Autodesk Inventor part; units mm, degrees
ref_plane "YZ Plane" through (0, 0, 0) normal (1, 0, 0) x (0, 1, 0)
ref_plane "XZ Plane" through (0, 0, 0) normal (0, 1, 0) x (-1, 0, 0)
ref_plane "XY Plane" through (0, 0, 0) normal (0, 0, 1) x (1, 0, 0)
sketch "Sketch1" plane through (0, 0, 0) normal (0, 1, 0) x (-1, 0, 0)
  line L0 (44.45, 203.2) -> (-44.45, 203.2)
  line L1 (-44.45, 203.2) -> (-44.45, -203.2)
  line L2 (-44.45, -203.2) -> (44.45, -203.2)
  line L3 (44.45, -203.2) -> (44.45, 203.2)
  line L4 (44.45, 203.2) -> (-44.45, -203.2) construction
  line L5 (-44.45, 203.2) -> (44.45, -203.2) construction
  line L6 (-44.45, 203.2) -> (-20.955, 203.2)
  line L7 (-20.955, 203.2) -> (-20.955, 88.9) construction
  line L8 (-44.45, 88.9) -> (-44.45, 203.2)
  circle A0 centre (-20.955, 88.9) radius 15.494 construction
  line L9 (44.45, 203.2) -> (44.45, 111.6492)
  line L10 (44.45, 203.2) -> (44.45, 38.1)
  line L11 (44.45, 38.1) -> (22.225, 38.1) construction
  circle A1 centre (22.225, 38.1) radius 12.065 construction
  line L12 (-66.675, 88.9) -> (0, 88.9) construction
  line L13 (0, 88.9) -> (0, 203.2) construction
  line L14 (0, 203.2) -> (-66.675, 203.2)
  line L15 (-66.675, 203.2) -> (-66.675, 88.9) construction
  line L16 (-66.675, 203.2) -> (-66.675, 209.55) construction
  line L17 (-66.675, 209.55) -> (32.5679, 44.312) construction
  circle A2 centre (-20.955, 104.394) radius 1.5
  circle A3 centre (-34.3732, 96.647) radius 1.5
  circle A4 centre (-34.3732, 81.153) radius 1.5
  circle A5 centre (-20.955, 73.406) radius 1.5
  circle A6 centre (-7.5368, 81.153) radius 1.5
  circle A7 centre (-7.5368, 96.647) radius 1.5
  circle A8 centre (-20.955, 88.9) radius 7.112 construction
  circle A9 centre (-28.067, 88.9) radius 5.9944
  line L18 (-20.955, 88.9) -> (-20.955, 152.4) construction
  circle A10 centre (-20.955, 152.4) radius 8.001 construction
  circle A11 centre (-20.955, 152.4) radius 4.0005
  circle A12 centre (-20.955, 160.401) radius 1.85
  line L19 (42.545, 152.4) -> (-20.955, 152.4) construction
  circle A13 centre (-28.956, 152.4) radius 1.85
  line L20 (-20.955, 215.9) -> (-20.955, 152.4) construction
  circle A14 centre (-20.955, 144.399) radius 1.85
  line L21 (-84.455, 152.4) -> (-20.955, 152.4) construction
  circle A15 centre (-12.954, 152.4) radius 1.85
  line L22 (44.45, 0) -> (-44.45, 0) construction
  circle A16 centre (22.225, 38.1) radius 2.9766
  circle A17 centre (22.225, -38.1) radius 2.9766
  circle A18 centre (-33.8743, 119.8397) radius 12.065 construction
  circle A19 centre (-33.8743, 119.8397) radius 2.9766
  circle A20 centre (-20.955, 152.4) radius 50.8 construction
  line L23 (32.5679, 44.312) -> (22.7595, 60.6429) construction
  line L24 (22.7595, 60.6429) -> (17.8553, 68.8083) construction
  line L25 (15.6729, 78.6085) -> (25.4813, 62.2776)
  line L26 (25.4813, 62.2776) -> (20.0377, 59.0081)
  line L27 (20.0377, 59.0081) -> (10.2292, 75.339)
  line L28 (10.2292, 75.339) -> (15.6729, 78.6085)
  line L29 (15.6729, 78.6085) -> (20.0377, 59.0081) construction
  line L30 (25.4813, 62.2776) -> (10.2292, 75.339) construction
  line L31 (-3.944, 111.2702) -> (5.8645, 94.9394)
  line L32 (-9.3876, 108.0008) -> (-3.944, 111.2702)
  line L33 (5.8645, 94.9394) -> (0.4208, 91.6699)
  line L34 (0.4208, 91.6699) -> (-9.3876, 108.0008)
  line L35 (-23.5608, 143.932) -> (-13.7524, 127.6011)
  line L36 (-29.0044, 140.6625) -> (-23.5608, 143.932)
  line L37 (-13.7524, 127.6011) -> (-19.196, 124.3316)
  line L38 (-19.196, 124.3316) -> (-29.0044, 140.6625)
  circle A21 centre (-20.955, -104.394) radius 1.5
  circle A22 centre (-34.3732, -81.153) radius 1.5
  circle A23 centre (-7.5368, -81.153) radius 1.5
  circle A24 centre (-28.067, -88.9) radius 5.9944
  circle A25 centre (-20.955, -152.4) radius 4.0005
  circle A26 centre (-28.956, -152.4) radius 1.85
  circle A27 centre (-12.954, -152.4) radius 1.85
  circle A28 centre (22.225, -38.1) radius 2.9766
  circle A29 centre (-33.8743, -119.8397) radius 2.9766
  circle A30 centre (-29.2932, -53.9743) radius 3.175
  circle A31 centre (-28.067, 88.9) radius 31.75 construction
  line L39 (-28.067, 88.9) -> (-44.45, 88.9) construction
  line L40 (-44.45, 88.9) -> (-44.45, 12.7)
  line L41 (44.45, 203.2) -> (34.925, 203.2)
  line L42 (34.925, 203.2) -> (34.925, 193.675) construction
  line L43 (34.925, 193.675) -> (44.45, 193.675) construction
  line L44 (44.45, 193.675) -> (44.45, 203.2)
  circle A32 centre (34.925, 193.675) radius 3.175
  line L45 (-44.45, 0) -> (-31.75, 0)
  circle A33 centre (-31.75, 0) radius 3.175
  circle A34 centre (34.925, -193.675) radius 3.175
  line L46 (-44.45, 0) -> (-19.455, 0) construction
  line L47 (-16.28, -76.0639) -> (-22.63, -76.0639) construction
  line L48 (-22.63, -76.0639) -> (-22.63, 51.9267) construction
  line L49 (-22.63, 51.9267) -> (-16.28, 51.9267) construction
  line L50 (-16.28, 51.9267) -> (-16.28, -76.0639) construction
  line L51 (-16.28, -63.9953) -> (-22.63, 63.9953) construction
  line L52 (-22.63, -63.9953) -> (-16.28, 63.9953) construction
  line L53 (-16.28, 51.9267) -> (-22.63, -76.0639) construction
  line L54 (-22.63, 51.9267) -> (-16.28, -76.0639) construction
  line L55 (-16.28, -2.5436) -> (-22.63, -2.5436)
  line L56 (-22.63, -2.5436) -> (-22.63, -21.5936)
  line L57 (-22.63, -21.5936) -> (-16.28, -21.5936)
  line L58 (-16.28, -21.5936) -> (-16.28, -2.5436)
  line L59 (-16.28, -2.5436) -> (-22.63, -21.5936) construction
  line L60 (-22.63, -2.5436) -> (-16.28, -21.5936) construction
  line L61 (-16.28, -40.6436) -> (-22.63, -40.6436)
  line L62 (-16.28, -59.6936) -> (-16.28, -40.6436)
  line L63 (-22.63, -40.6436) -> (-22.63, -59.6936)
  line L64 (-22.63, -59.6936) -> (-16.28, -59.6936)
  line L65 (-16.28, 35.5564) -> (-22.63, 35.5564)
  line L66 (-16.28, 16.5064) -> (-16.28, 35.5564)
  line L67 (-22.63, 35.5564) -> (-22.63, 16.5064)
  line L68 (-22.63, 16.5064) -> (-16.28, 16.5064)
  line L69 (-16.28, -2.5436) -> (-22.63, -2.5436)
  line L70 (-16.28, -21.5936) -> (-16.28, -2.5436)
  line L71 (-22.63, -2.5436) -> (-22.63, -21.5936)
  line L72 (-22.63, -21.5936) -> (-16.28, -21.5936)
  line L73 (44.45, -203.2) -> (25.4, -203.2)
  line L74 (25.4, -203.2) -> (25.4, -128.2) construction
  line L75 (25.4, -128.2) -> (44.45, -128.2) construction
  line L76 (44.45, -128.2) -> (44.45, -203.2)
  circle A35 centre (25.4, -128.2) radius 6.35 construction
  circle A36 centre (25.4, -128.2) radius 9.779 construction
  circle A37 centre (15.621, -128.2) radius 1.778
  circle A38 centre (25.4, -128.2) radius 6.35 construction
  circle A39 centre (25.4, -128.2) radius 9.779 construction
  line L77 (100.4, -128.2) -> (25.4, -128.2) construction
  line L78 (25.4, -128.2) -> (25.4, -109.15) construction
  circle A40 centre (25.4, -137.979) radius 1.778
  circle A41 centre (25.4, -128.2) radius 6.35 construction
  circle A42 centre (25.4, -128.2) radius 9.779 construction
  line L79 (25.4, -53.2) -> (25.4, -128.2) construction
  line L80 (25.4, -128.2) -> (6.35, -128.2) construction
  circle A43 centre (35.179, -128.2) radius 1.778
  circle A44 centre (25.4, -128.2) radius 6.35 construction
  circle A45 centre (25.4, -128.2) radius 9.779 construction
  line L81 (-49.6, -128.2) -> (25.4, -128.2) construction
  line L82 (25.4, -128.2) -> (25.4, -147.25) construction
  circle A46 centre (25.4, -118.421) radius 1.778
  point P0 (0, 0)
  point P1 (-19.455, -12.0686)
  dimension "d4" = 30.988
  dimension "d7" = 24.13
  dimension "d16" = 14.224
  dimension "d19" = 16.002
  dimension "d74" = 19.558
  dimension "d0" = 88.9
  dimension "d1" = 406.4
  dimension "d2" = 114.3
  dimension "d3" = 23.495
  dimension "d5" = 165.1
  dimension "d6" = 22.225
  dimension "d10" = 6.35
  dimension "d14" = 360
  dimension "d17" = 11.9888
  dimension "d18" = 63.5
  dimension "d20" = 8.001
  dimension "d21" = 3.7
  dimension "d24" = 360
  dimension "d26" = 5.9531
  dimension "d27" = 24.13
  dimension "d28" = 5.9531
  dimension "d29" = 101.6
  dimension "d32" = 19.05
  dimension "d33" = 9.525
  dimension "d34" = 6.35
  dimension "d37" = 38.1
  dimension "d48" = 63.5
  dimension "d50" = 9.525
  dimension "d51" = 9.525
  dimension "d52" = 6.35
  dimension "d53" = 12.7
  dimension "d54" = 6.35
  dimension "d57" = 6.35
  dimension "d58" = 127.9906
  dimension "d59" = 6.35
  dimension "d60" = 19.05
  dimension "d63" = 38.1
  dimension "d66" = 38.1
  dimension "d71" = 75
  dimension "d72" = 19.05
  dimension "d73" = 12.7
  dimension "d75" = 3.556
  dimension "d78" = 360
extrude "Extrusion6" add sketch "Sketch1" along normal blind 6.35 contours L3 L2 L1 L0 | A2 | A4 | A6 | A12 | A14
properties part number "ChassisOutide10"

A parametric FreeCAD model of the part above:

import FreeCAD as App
import Part
import Sketcher
from FreeCAD import Vector
Q = App.Units.Quantity

doc = App.newDocument("Part")
body = doc.addObject("PartDesign::Body", "Body")

# Sketch on XZ plane
sketch1 = doc.addObject("Sketcher::SketchObject", "Sketch")
body.addObject(sketch1)
sketch1.AttachmentSupport = (doc.XZ_Plane, [""])
sketch1.MapMode = "FlatFace"
sketch1.addGeometry([
    Part.LineSegment(Vector(-44.45, 203.2, 0), Vector(44.45, 203.2, 0)),  # 0
    Part.LineSegment(Vector(44.45, 203.2, 0), Vector(44.45, 0, 0)),  # 1
    Part.LineSegment(Vector(44.45, 0, 0), Vector(44.45, -203.2, 0)),  # 2
    Part.LineSegment(Vector(44.45, -203.2, 0), Vector(-44.45, -203.2, 0)),  # 3
    Part.LineSegment(Vector(-44.45, -203.2, 0), Vector(-44.45, 203.2, 0)),  # 4
    Part.Circle(Vector(28.956, -152.4, 0), Vector(0, 0, 1), 1.85),  # 5
    Part.Circle(Vector(33.8743, -119.8397, 0), Vector(0, 0, 1), 2.9766),  # 6
    Part.Circle(Vector(20.955, -152.4, 0), Vector(0, 0, 1), 4.0005),  # 7
    Part.Circle(Vector(12.954, -152.4, 0), Vector(0, 0, 1), 1.85),  # 8
    Part.Circle(Vector(20.955, -104.394, 0), Vector(0, 0, 1), 1.5),  # 9
    Part.Circle(Vector(34.3732, -81.153, 0), Vector(0, 0, 1), 1.5),  # 10
    Part.Circle(Vector(28.067, -88.9, 0), Vector(0, 0, 1), 5.9944),  # 11
    Part.Circle(Vector(29.2932, -53.9743, 0), Vector(0, 0, 1), 3.175),  # 12
    Part.Circle(Vector(31.75, 0, 0), Vector(0, 0, 1), 3.175),  # 13
    Part.Circle(Vector(7.5368, -81.153, 0), Vector(0, 0, 1), 1.5),  # 14
    Part.LineSegment(Vector(22.63, -40.6436, 0), Vector(16.28, -40.6436, 0)),  # 15
    Part.LineSegment(Vector(16.28, -40.6436, 0), Vector(16.28, -59.6936, 0)),  # 16
    Part.LineSegment(Vector(16.28, -59.6936, 0), Vector(22.63, -59.6936, 0)),  # 17
    Part.LineSegment(Vector(22.63, -59.6936, 0), Vector(22.63, -40.6436, 0)),  # 18
    Part.LineSegment(Vector(22.63, -2.5436, 0), Vector(16.28, -2.5436, 0)),  # 19
    Part.LineSegment(Vector(16.28, -2.5436, 0), Vector(16.28, -21.5936, 0)),  # 20
    Part.LineSegment(Vector(16.28, -21.5936, 0), Vector(22.63, -21.5936, 0)),  # 21
    Part.LineSegment(Vector(22.63, -21.5936, 0), Vector(22.63, -2.5436, 0)),  # 22
    Part.Circle(Vector(-15.621, -128.2, 0), Vector(0, 0, 1), 1.778),  # 23
    Part.Circle(Vector(-34.925, -193.675, 0), Vector(0, 0, 1), 3.175),  # 24
    Part.Circle(Vector(-25.4, -137.979, 0), Vector(0, 0, 1), 1.778),  # 25
    Part.Circle(Vector(-25.4, -118.421, 0), Vector(0, 0, 1), 1.778),  # 26
    Part.Circle(Vector(-35.179, -128.2, 0), Vector(0, 0, 1), 1.778),  # 27
    Part.Circle(Vector(-22.225, -38.1, 0), Vector(0, 0, 1), 2.9766),  # 28
    Part.Circle(Vector(34.3732, 96.647, 0), Vector(0, 0, 1), 1.5),  # 29
    Part.Circle(Vector(28.067, 88.9, 0), Vector(0, 0, 1), 5.9944),  # 30
    Part.LineSegment(Vector(22.63, 35.5564, 0), Vector(16.28, 35.5564, 0)),  # 31
    Part.LineSegment(Vector(16.28, 35.5564, 0), Vector(16.28, 16.5064, 0)),  # 32
    Part.LineSegment(Vector(16.28, 16.5064, 0), Vector(22.63, 16.5064, 0)),  # 33
    Part.LineSegment(Vector(22.63, 16.5064, 0), Vector(22.63, 35.5564, 0)),  # 34
    Part.Circle(Vector(20.955, 73.406, 0), Vector(0, 0, 1), 1.5),  # 35
    Part.Circle(Vector(7.5368, 96.647, 0), Vector(0, 0, 1), 1.5),  # 36
    Part.LineSegment(Vector(9.3876, 108.0008, 0), Vector(3.944, 111.2702, 0)),  # 37
    Part.LineSegment(Vector(3.944, 111.2702, 0), Vector(-5.8645, 94.9394, 0)),  # 38
    Part.LineSegment(Vector(-5.8645, 94.9394, 0), Vector(-0.4208, 91.6699, 0)),  # 39
    Part.LineSegment(Vector(-0.4208, 91.6699, 0), Vector(9.3876, 108.0008, 0)),  # 40
    Part.Circle(Vector(33.8743, 119.8397, 0), Vector(0, 0, 1), 2.9766),  # 41
    Part.Circle(Vector(28.956, 152.4, 0), Vector(0, 0, 1), 1.85),  # 42
    Part.LineSegment(Vector(29.0044, 140.6625, 0), Vector(23.5608, 143.932, 0)),  # 43
    Part.LineSegment(Vector(23.5608, 143.932, 0), Vector(13.7524, 127.6011, 0)),  # 44
    Part.LineSegment(Vector(13.7524, 127.6011, 0), Vector(19.196, 124.3316, 0)),  # 45
    Part.LineSegment(Vector(19.196, 124.3316, 0), Vector(29.0044, 140.6625, 0)),  # 46
    Part.Circle(Vector(20.955, 152.4, 0), Vector(0, 0, 1), 4.0005),  # 47
    Part.Circle(Vector(12.954, 152.4, 0), Vector(0, 0, 1), 1.85),  # 48
    Part.LineSegment(Vector(-10.2292, 75.339, 0), Vector(-15.6729, 78.6085, 0)),  # 49
    Part.LineSegment(Vector(-15.6729, 78.6085, 0), Vector(-25.4813, 62.2776, 0)),  # 50
    Part.LineSegment(Vector(-25.4813, 62.2776, 0), Vector(-20.0377, 59.0081, 0)),  # 51
    Part.LineSegment(Vector(-20.0377, 59.0081, 0), Vector(-10.2292, 75.339, 0)),  # 52
    Part.Circle(Vector(-22.225, 38.1, 0), Vector(0, 0, 1), 2.9766),  # 53
    Part.Circle(Vector(-34.925, 193.675, 0), Vector(0, 0, 1), 3.175),  # 54
], False)
sketch1.addConstraint([
    Sketcher.Constraint("Coincident", 0, 2, 1, 1),
    Sketcher.Constraint("Coincident", 1, 2, 2, 1),
    Sketcher.Constraint("Coincident", 2, 2, 3, 1),
    Sketcher.Constraint("Coincident", 3, 2, 4, 1),
    Sketcher.Constraint("Coincident", 4, 2, 0, 1),
    Sketcher.Constraint("Coincident", 15, 2, 16, 1),
    Sketcher.Constraint("Coincident", 16, 2, 17, 1),
    Sketcher.Constraint("Coincident", 17, 2, 18, 1),
    Sketcher.Constraint("Coincident", 18, 2, 15, 1),
    Sketcher.Constraint("Coincident", 19, 2, 20, 1),
    Sketcher.Constraint("Coincident", 20, 2, 21, 1),
    Sketcher.Constraint("Coincident", 21, 2, 22, 1),
    Sketcher.Constraint("Coincident", 22, 2, 19, 1),
    Sketcher.Constraint("Coincident", 31, 2, 32, 1),
    Sketcher.Constraint("Coincident", 32, 2, 33, 1),
    Sketcher.Constraint("Coincident", 33, 2, 34, 1),
    Sketcher.Constraint("Coincident", 34, 2, 31, 1),
    Sketcher.Constraint("Coincident", 37, 2, 38, 1),
    Sketcher.Constraint("Coincident", 38, 2, 39, 1),
    Sketcher.Constraint("Coincident", 39, 2, 40, 1),
    Sketcher.Constraint("Coincident", 40, 2, 37, 1),
    Sketcher.Constraint("Coincident", 43, 2, 44, 1),
    Sketcher.Constraint("Coincident", 44, 2, 45, 1),
    Sketcher.Constraint("Coincident", 45, 2, 46, 1),
    Sketcher.Constraint("Coincident", 46, 2, 43, 1),
    Sketcher.Constraint("Coincident", 49, 2, 50, 1),
    Sketcher.Constraint("Coincident", 50, 2, 51, 1),
    Sketcher.Constraint("Coincident", 51, 2, 52, 1),
    Sketcher.Constraint("Coincident", 52, 2, 49, 1),
    Sketcher.Constraint("Horizontal", 0),
    Sketcher.Constraint("Vertical", 1),
    Sketcher.Constraint("Vertical", 2),
    Sketcher.Constraint("Horizontal", 3),
    Sketcher.Constraint("Vertical", 4),
    Sketcher.Constraint("Horizontal", 15),
    Sketcher.Constraint("Vertical", 16),
    Sketcher.Constraint("Horizontal", 17),
    Sketcher.Constraint("Vertical", 18),
    Sketcher.Constraint("Horizontal", 19),
    Sketcher.Constraint("Vertical", 20),
    Sketcher.Constraint("Horizontal", 21),
    Sketcher.Constraint("Vertical", 22),
    Sketcher.Constraint("Horizontal", 31),
    Sketcher.Constraint("Vertical", 32),
    Sketcher.Constraint("Horizontal", 33),
    Sketcher.Constraint("Vertical", 34),
    Sketcher.Constraint("Equal", 5, 8),
    Sketcher.Constraint("Equal", 9, 10),
    Sketcher.Constraint("Equal", 12, 13),
    Sketcher.Constraint("Equal", 10, 14),
    Sketcher.Constraint("Equal", 13, 24),
    Sketcher.Constraint("Equal", 23, 25),
    Sketcher.Constraint("Equal", 25, 26),
    Sketcher.Constraint("Equal", 26, 27),
    Sketcher.Constraint("Equal", 6, 28),
    Sketcher.Constraint("Equal", 14, 29),
    Sketcher.Constraint("Equal", 11, 30),
    Sketcher.Constraint("Equal", 29, 35),
    Sketcher.Constraint("Equal", 35, 36),
    Sketcher.Constraint("Equal", 28, 41),
    Sketcher.Constraint("Equal", 8, 42),
    Sketcher.Constraint("Equal", 7, 47),
    Sketcher.Constraint("Equal", 42, 48),
    Sketcher.Constraint("Equal", 41, 53),
    Sketcher.Constraint("Equal", 24, 54),
    Sketcher.Constraint("Symmetric", 0, 2, 3, 2, -1, 1),
    Sketcher.Constraint("Symmetric", 11, 3, 30, 3, -1),
    Sketcher.Constraint("Symmetric", 6, 3, 41, 3, -1),
    Sketcher.Constraint("Symmetric", 5, 3, 42, 3, -1),
    Sketcher.Constraint("Symmetric", 7, 3, 47, 3, -1),
    Sketcher.Constraint("Symmetric", 8, 3, 48, 3, -1),
    Sketcher.Constraint("Symmetric", 28, 3, 53, 3, -1),
    Sketcher.Constraint("Symmetric", 24, 3, 54, 3, -1),
    Sketcher.Constraint("PointOnObject", 13, 3, -1),
    Sketcher.Constraint("PointOnObject", 1, 2, -1),
    Sketcher.Constraint("Perpendicular", 37, 38),
    Sketcher.Constraint("Perpendicular", 38, 39),
    Sketcher.Constraint("Perpendicular", 39, 40),
    Sketcher.Constraint("Perpendicular", 40, 43),
    Sketcher.Constraint("Perpendicular", 43, 44),
    Sketcher.Constraint("Perpendicular", 44, 45),
    Sketcher.Constraint("Perpendicular", 45, 46),
    Sketcher.Constraint("Perpendicular", 46, 49),
    Sketcher.Constraint("Perpendicular", 49, 50),
    Sketcher.Constraint("Perpendicular", 50, 51),
    Sketcher.Constraint("Perpendicular", 51, 52),
    Sketcher.Constraint("Horizontal", 5, 3, 7, 3),
    Sketcher.Constraint("Horizontal", 7, 3, 8, 3),
    Sketcher.Constraint("Horizontal", 10, 3, 14, 3),
    Sketcher.Constraint("Horizontal", 23, 3, 27, 3),
    Sketcher.Constraint("Horizontal", 29, 3, 36, 3),
    Sketcher.Constraint("Vertical", 7, 3, 9, 3),
    Sketcher.Constraint("Vertical", 25, 3, 26, 3),
    Sketcher.Constraint("Vertical", 10, 3, 29, 3),
    Sketcher.Constraint("Vertical", 9, 3, 35, 3),
    Sketcher.Constraint("Vertical", 14, 3, 36, 3),
    Sketcher.Constraint("Vertical", 16, 2, 19, 2),
    Sketcher.Constraint("Vertical", 18, 2, 21, 2),
    Sketcher.Constraint("Vertical", 20, 2, 31, 2),
    Sketcher.Constraint("Vertical", 22, 2, 33, 2),
    Sketcher.Constraint("Equal", 18, 20),
    Sketcher.Constraint("Equal", 22, 32),
    Sketcher.Constraint("Equal", 39, 43),
    Sketcher.Constraint("Equal", 40, 44),
    Sketcher.Constraint("Equal", 45, 49),
    Sketcher.Constraint("Equal", 46, 50),
    Sketcher.Constraint("Diameter", 12, Q("0.25 in")),
    Sketcher.Constraint("Diameter", 23, Q("0.14 in")),
    Sketcher.Constraint("DistanceY", 4, 1, 4, 2, Q("16 in")),
    Sketcher.Constraint("Diameter", 6, Q("0.234378 in")),
    Sketcher.Constraint("Diameter", 7, Q("0.315 in")),
    Sketcher.Constraint("Diameter", 11, Q("0.472 in")),
    Sketcher.Constraint("DistanceX", 0, 1, 0, 2, Q("3.5 in")),
    Sketcher.Constraint("DistanceX", 25, 3, -1, 1, Q("1 in")),
    Sketcher.Constraint("DistanceX", 15, 2, 15, 1, Q("0.25 in")),
    Sketcher.Constraint("DistanceY", 16, 2, 16, 1, Q("0.75 in")),
    Sketcher.Constraint("DistanceY", 11, 3, -1, 1, Q("3.5 in")),
    Sketcher.Constraint("DistanceY", 28, 3, -1, 1, Q("1.5 in")),
    Sketcher.Constraint("DistanceY", 5, 3, 11, 3, Q("2.5 in")),
    Sketcher.Constraint("DistanceX", 13, 3, 1, 2, Q("0.5 in")),
    Sketcher.Constraint("DistanceY", 15, 2, 19, 2, Q("1.5 in")),
    Sketcher.Constraint("DistanceY", 19, 2, 31, 2, Q("1.5 in")),
    Sketcher.Constraint("Distance", 37, Q("0.25 in")),
    Sketcher.Constraint("Distance", 38, Q("0.75 in")),
    Sketcher.Constraint("Diameter", 5, Q("3.7 mm")),
    Sketcher.Constraint("DistanceX", 8, 3, 5, 3, Q("0.63 in")),
    Sketcher.Constraint("DistanceY", 25, 3, 26, 3, Q("0.77 in")),
    Sketcher.Constraint("DistanceX", 27, 3, 23, 3, Q("0.77 in")),
    Sketcher.Constraint("DistanceX", 28, 3, -1, 1, Q("0.875 in")),
    Sketcher.Constraint("DistanceX", 7, 3, 5, 3, Q("0.315 in")),
    Sketcher.Constraint("DistanceX", 24, 3, 25, 3, Q("0.375 in")),
    Sketcher.Constraint("DistanceY", 10, 3, 29, 3, Q("7 in")),
    Sketcher.Constraint("DistanceX", 47, 3, 0, 2, Q("0.925 in")),
    Sketcher.Constraint("DistanceY", 54, 3, 0, 2, Q("0.375 in")),
    Sketcher.Constraint("Diameter", 9, Q("0.1181 in")),
    Sketcher.Constraint("DistanceX", 12, 3, 10, 3, Q("0.2 in")),
    Sketcher.Constraint("DistanceY", 9, 3, -1, 1, Q("4.11 in")),
    Sketcher.Constraint("DistanceY", -1, 1, 35, 3, Q("2.89 in")),
    Sketcher.Constraint("Angle", 37, Q("149.0112 deg")),
    Sketcher.Constraint("DistanceX", 9, 3, 11, 3, Q("0.28 in")),
    Sketcher.Constraint("DistanceX", 23, 3, 9, 3, Q("1.44 in")),
    Sketcher.Constraint("DistanceY", 36, 3, 54, 3, Q("3.82 in")),
    Sketcher.Constraint("DistanceY", 3, 2, 27, 3, Q("75 mm")),
    Sketcher.Constraint("DistanceY", -1, 1, 40, 2, Q("4.252 in")),
    Sketcher.Constraint("DistanceY", 25, 3, 23, 3, Q("0.385 in")),
    Sketcher.Constraint("DistanceX", 37, 2, 29, 3, Q("1.198 in")),
    Sketcher.Constraint("DistanceX", 51, 2, 38, 2, Q("0.558 in")),
    Sketcher.Constraint("DistanceY", 6, 3, -1, 1, Q("4.7181 in")),
    Sketcher.Constraint("DistanceX", -1, 1, 40, 2, Q("0.3696 in")),
    Sketcher.Constraint("DistanceX", -1, 1, 43, 2, Q("0.9276 in")),
    Sketcher.Constraint("DistanceY", -1, 1, 46, 2, Q("5.5379 in")),
    Sketcher.Constraint("DistanceY", -1, 1, 52, 2, Q("2.9661 in")),
    Sketcher.Constraint("DistanceX", 14, 3, 6, 3, Q("1.0369 in")),
    Sketcher.Constraint("DistanceX", 38, 2, 36, 3, Q("0.5276 in")),
    Sketcher.Constraint("DistanceY", 12, 3, -1, 1, Q("53.9743 mm")),
    Sketcher.Constraint("DistanceX", -1, 1, 15, 2, Q("16.28 mm")),
    Sketcher.Constraint("DistanceY", 15, 2, -1, 1, Q("40.6436 mm")),
])
pad1 = doc.addObject("PartDesign::Pad", "Pad")
body.addObject(pad1)
pad1.Profile = sketch1
pad1.Length = Q("0.25 in")
pad1.Reversed = True

doc.recompute()
